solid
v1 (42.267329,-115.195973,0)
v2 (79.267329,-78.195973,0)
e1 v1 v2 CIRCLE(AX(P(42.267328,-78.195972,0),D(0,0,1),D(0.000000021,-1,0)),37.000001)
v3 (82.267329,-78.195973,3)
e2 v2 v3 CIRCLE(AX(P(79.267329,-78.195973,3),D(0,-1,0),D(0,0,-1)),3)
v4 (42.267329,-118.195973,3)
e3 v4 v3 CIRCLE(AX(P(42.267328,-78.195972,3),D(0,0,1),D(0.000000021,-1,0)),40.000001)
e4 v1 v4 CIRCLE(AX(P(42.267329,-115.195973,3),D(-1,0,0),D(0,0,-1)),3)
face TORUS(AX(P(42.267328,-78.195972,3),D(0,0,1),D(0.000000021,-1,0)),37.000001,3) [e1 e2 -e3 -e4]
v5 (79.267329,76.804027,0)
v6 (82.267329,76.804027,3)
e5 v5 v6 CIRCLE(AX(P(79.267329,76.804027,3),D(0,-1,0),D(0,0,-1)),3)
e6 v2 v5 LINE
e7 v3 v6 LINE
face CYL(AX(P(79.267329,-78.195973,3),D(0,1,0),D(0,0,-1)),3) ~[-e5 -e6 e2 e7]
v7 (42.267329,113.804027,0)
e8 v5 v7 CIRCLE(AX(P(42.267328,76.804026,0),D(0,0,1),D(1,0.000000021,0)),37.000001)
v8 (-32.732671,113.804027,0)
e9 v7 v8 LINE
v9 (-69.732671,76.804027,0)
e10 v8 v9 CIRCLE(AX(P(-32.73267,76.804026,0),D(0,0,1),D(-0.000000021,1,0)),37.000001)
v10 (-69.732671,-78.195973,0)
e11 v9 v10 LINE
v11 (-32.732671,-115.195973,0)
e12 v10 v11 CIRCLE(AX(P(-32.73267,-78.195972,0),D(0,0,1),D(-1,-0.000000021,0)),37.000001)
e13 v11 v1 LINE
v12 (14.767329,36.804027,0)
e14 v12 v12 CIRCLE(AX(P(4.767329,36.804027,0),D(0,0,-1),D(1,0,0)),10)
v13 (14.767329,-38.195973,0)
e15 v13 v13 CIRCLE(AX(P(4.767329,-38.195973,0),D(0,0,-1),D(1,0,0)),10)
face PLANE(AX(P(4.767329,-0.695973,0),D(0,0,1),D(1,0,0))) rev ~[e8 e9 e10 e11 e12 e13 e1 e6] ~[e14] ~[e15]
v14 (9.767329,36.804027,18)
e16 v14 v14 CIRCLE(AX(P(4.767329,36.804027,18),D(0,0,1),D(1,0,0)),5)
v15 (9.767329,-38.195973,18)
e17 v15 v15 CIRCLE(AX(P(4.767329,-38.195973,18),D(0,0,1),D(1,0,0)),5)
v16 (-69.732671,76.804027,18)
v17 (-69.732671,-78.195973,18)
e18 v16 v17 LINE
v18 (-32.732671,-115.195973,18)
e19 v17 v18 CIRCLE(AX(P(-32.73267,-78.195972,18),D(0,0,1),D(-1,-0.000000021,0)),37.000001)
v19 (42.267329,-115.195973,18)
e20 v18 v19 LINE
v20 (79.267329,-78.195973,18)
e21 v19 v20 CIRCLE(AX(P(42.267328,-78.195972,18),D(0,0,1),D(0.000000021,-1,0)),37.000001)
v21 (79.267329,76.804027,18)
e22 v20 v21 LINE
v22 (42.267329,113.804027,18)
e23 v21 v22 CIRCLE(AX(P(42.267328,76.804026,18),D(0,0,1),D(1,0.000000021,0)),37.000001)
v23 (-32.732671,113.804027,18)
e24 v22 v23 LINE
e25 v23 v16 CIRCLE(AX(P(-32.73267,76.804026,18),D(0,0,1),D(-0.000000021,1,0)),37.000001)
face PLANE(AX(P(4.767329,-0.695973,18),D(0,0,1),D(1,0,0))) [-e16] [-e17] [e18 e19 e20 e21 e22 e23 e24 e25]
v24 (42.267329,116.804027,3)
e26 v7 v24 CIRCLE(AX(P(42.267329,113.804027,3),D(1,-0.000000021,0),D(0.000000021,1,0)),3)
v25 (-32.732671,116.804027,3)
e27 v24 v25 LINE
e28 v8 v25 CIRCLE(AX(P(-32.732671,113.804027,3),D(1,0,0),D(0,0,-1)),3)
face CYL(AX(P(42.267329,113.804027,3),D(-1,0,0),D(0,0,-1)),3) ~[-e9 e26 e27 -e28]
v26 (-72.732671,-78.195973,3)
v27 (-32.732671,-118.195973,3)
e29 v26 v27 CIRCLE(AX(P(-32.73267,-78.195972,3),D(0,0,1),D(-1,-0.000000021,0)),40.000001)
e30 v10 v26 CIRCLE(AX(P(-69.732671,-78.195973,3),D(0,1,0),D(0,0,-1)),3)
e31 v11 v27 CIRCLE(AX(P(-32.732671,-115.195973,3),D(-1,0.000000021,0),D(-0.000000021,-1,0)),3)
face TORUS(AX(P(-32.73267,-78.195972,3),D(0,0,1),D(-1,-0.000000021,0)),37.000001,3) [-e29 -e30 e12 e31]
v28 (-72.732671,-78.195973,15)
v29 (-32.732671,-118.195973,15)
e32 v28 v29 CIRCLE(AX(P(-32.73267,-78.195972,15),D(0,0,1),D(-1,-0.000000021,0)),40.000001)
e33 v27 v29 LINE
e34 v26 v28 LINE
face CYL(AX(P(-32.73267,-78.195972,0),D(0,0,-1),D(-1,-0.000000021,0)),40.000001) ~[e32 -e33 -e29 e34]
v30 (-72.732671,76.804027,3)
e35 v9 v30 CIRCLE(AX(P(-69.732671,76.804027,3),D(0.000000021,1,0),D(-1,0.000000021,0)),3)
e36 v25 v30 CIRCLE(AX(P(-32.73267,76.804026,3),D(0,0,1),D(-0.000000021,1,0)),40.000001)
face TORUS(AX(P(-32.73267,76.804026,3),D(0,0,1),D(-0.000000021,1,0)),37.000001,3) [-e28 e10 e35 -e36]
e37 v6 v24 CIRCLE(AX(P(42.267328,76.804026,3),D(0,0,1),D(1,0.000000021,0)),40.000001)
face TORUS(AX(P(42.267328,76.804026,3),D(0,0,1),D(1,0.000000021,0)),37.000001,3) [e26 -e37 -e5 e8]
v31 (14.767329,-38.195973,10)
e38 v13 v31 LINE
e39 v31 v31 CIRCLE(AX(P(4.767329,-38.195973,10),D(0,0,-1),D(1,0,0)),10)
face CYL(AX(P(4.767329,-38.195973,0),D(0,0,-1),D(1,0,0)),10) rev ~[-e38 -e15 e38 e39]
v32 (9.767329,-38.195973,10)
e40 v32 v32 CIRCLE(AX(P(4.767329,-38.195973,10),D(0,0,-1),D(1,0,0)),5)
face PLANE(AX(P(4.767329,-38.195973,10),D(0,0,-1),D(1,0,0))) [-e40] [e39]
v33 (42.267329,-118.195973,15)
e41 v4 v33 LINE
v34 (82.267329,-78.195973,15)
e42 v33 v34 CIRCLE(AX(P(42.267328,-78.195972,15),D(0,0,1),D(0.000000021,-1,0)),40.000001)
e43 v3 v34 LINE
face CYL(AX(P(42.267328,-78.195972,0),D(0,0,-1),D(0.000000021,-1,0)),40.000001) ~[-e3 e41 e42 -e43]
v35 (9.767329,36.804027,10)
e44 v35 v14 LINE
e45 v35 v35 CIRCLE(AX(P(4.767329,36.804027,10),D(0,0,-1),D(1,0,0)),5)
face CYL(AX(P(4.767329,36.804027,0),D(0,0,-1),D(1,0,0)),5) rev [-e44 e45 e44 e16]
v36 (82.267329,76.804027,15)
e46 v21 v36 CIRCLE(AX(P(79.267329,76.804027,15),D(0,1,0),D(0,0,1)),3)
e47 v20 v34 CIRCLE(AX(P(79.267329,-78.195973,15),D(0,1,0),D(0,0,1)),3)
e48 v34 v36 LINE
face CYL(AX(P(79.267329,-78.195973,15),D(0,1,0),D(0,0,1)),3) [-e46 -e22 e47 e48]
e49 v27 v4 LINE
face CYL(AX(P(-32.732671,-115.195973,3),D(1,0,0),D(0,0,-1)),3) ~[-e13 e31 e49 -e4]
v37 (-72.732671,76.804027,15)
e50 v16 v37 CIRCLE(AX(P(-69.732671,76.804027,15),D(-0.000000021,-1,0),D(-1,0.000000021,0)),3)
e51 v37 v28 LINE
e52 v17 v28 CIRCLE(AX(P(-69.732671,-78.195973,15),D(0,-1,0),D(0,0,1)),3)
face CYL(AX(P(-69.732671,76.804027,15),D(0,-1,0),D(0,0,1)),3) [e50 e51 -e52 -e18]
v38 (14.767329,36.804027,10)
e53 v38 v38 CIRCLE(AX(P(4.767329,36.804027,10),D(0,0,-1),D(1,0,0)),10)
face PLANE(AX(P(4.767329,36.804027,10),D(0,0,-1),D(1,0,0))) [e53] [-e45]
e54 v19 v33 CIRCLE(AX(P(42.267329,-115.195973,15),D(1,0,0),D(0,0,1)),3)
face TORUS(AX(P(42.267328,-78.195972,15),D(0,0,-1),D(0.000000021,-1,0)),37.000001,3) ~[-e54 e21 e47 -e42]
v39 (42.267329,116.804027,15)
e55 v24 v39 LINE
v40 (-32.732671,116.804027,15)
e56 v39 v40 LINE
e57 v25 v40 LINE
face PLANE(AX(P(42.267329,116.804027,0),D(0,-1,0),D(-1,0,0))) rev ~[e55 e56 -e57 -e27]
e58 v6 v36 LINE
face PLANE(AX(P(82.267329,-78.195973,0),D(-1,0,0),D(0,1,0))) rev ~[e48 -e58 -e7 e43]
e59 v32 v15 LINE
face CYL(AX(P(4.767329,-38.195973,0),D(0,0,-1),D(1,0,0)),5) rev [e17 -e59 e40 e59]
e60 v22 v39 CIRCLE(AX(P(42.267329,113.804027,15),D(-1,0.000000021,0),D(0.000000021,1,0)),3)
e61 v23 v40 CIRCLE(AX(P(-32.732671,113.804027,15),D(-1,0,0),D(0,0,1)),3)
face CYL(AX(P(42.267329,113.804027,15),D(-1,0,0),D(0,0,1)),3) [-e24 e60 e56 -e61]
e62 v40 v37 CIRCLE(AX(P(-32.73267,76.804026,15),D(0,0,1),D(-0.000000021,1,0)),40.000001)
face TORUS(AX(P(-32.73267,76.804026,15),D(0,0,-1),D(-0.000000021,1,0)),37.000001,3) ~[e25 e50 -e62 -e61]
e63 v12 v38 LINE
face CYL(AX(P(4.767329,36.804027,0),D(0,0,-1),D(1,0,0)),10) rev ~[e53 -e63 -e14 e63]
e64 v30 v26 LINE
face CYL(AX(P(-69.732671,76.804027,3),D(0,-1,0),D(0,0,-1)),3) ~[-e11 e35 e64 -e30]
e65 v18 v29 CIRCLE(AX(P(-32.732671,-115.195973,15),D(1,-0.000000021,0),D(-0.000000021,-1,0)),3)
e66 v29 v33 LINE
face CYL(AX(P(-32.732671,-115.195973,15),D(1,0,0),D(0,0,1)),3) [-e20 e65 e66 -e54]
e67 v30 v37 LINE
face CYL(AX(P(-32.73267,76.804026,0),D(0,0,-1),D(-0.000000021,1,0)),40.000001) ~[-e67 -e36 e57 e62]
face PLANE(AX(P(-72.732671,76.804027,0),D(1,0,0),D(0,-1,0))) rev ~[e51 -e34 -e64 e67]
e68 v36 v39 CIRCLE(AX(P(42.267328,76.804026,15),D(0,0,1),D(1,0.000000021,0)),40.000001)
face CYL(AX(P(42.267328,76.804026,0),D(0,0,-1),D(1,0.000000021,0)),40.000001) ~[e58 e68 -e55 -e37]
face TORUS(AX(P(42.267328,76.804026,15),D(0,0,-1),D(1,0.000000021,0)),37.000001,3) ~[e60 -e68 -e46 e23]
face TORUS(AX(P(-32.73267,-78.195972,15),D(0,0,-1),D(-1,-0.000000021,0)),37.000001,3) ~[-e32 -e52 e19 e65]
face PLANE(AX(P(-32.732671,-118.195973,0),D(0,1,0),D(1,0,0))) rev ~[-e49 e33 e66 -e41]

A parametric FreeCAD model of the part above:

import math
import FreeCAD as App
import Part
import Sketcher

V = App.Vector
Q = App.Units.Quantity


def edges_at(feature, points):
    """Names of the edges that pass closest to the given points."""
    edges = feature.Shape.Edges
    near = lambda p: min(range(len(edges)), key=lambda i: edges[i].distToShape(Part.Vertex(*p))[0])
    return sorted({f"Edge{near(p) + 1}" for p in points})

doc = App.newDocument("Part")
body = doc.addObject("PartDesign::Body", "Body")

# Sketch on XY plane
sketch1 = body.newObject("Sketcher::SketchObject", "Sketch")
sketch1.AttachmentSupport = (doc.getObject("XY_Plane"), [""])
sketch1.MapMode = "FlatFace"
sketch1.addGeometry(Part.ArcOfCircle(Part.Circle(V(-32.73267, -78.195972, 0), V(0, 0, 1), 40.000001), math.radians(-179.999999), math.radians(-90.000001)), False)
sketch1.addGeometry(Part.LineSegment(V(-32.732671, -118.195973, 0), V(42.267329, -118.195973, 0)), False)
sketch1.addGeometry(Part.ArcOfCircle(Part.Circle(V(42.267328, -78.195972, 0), V(0, 0, 1), 40.000001), math.radians(-89.999999), math.radians(-0.000001)), False)
sketch1.addGeometry(Part.LineSegment(V(82.267329, -78.195973, 0), V(82.267329, 76.804027, 0)), False)
sketch1.addGeometry(Part.ArcOfCircle(Part.Circle(V(42.267328, 76.804026, 0), V(0, 0, 1), 40.000001), math.radians(0.000001), math.radians(89.999999)), False)
sketch1.addGeometry(Part.LineSegment(V(42.267329, 116.804027, 0), V(-32.732671, 116.804027, 0)), False)
sketch1.addGeometry(Part.ArcOfCircle(Part.Circle(V(-32.73267, 76.804026, 0), V(0, 0, 1), 40.000001), math.radians(90.000001), math.radians(179.999999)), False)
sketch1.addGeometry(Part.LineSegment(V(-72.732671, 76.804027, 0), V(-72.732671, -78.195973, 0)), False)
sketch1.addGeometry(Part.Circle(V(4.767329, -38.195973, 0), V(0, 0, 1), 5), False)
sketch1.addGeometry(Part.Circle(V(4.767329, 36.804027, 0), V(0, 0, 1), 5), False)
sketch1.addConstraint(Sketcher.Constraint("Tangent", 0, 2, 1, 1))
sketch1.addConstraint(Sketcher.Constraint("Tangent", 1, 2, 2, 1))
sketch1.addConstraint(Sketcher.Constraint("Tangent", 2, 2, 3, 1))
sketch1.addConstraint(Sketcher.Constraint("Tangent", 3, 2, 4, 1))
sketch1.addConstraint(Sketcher.Constraint("Tangent", 4, 2, 5, 1))
sketch1.addConstraint(Sketcher.Constraint("Tangent", 5, 2, 6, 1))
sketch1.addConstraint(Sketcher.Constraint("Tangent", 6, 2, 7, 1))
sketch1.addConstraint(Sketcher.Constraint("Tangent", 7, 2, 0, 1))
sketch1.addConstraint(Sketcher.Constraint("Horizontal", 1))
sketch1.addConstraint(Sketcher.Constraint("Vertical", 3))
sketch1.addConstraint(Sketcher.Constraint("Horizontal", 5))
sketch1.addConstraint(Sketcher.Constraint("Vertical", 7))
sketch1.addConstraint(Sketcher.Constraint("Equal", 0, 2))
sketch1.addConstraint(Sketcher.Constraint("Equal", 2, 4))
sketch1.addConstraint(Sketcher.Constraint("Equal", 4, 6))
sketch1.addConstraint(Sketcher.Constraint("Equal", 8, 9))
sketch1.addConstraint(Sketcher.Constraint("Vertical", 8, 3, 9, 3))
sketch1.addConstraint(Sketcher.Constraint("Diameter", 8, Q("10 mm")))
sketch1.addConstraint(Sketcher.Constraint("Radius", 0, Q("40.000001 mm")))
sketch1.addConstraint(Sketcher.Constraint("DistanceX", 1, 1, 1, 2, Q("75 mm")))
sketch1.addConstraint(Sketcher.Constraint("DistanceY", 3, 1, 3, 2, Q("155 mm")))
sketch1.addConstraint(Sketcher.Constraint("DistanceY", 0, 3, 8, 3, Q("39.999999 mm")))
sketch1.addConstraint(Sketcher.Constraint("DistanceY", 9, 3, 4, 3, Q("39.999999 mm")))
sketch1.addConstraint(Sketcher.Constraint("DistanceX", 0, 3, 8, 3, Q("37.499999 mm")))
sketch1.addConstraint(Sketcher.Constraint("DistanceX", 0, 3, -1, 1, Q("32.73267 mm")))
sketch1.addConstraint(Sketcher.Constraint("DistanceY", 0, 3, -1, 1, Q("78.195972 mm")))
pad1 = body.newObject("PartDesign::Pad", "Pad")
pad1.Profile = sketch1
pad1.Length = 18

# Sketch on XY plane
sketch2 = body.newObject("Sketcher::SketchObject", "Sketch001")
sketch2.AttachmentSupport = (doc.getObject("XY_Plane"), [""])
sketch2.MapMode = "FlatFace"
sketch2.addGeometry(Part.Circle(V(4.767329, -38.195973, 0), V(0, 0, 1), 10), False)
sketch2.addGeometry(Part.Circle(V(4.767329, 36.804027, 0), V(0, 0, 1), 10), False)
sketch2.addConstraint(Sketcher.Constraint("Equal", 0, 1))
sketch2.addConstraint(Sketcher.Constraint("Vertical", 0, 3, 1, 3))
sketch2.addConstraint(Sketcher.Constraint("Diameter", 0, Q("20 mm")))
sketch2.addConstraint(Sketcher.Constraint("DistanceY", 0, 3, 1, 3, Q("75 mm")))
sketch2.addConstraint(Sketcher.Constraint("DistanceX", -1, 1, 0, 3, Q("4.767329 mm")))
sketch2.addConstraint(Sketcher.Constraint("DistanceY", 0, 3, -1, 1, Q("38.195973 mm")))
pocket1 = body.newObject("PartDesign::Pocket", "Pocket")
pocket1.Profile = sketch2
pocket1.Length = 10
pocket1.Reversed = True
doc.recompute()

fillet = body.newObject("PartDesign::Fillet", "Fillet")
fillet.Base = (pocket1, edges_at(pocket1, [(82.267, -0.696, 18), (82.267, -0.696, 0)]))
fillet.Radius = 3

doc.recompute()
